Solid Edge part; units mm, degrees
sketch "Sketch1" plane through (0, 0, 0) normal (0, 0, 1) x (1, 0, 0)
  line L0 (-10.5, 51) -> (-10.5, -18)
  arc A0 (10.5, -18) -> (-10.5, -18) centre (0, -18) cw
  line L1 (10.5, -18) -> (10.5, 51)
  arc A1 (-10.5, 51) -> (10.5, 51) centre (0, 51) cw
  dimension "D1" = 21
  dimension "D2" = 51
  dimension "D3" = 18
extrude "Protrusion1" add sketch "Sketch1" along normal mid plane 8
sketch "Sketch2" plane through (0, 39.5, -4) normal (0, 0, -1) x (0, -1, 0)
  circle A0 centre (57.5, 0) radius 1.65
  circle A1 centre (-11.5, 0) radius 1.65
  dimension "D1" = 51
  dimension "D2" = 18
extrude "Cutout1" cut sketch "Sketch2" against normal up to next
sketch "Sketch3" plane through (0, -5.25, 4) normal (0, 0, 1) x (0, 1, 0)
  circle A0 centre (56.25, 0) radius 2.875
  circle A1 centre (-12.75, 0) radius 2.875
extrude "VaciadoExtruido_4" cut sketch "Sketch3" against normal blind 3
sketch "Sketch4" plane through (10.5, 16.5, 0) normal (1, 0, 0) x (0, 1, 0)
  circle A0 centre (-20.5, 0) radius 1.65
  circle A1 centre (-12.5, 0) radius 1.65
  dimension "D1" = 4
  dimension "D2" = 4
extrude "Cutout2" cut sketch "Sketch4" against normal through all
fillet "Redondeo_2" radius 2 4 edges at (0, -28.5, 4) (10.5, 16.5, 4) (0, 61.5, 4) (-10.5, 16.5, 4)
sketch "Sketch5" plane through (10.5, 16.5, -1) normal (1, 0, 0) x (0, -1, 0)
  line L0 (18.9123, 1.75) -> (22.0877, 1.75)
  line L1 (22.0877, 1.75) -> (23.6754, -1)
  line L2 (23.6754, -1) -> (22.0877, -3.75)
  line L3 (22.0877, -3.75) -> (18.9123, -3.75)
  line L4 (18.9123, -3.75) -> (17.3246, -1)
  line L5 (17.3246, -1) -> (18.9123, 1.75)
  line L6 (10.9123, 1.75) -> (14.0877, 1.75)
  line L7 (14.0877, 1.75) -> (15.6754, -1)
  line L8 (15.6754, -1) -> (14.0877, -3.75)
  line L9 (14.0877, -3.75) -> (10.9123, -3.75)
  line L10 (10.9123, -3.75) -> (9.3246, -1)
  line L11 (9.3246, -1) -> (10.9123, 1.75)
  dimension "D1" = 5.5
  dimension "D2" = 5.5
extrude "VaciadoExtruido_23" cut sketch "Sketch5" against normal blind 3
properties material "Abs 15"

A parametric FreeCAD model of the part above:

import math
import FreeCAD as App
import Part
import Sketcher
from FreeCAD import Vector
Q = App.Units.Quantity


def edges_at(feature, points):
    """Names of the edges that pass closest to the given points."""
    edges = feature.Shape.Edges
    near = lambda p: min(range(len(edges)), key=lambda i: edges[i].distToShape(Part.Vertex(*p))[0])
    return sorted({f"Edge{near(p) + 1}" for p in points})


def add_polygon(sketch, points):
    """Adds a closed chain of lines whose ends are joined by coincident constraints."""
    first, n = sketch.GeometryCount, len(points)
    for a, b in zip(points, points[1:] + points[:1]):
        sketch.addGeometry(Part.LineSegment(App.Vector(*a, 0), App.Vector(*b, 0)), False)
    for i in range(n):
        sketch.addConstraint(Sketcher.Constraint("Coincident", first + i, 2, first + (i + 1) % n, 1))

doc = App.newDocument("Part")
body = doc.addObject("PartDesign::Body", "Body")

# Sketch on XY plane
sketch1 = doc.addObject("Sketcher::SketchObject", "Sketch")
body.addObject(sketch1)
sketch1.AttachmentSupport = (doc.XY_Plane, [""])
sketch1.MapMode = "FlatFace"
sketch1.addGeometry([
    Part.ArcOfCircle(Part.Circle(Vector(0, 51, 0), Vector(0, 0, 1), 10), math.radians(0), math.radians(180)),
    Part.LineSegment(Vector(-10, 51, 0), Vector(-10, -18, 0)),
    Part.ArcOfCircle(Part.Circle(Vector(0, -18, 0), Vector(0, 0, 1), 10), math.radians(180), math.radians(360)),
    Part.LineSegment(Vector(10, -18, 0), Vector(10, 51, 0)),
], False)
sketch1.addConstraint([
    Sketcher.Constraint("Tangent", 0, 2, 1, 1),
    Sketcher.Constraint("Tangent", 1, 2, 2, 1),
    Sketcher.Constraint("Tangent", 2, 2, 3, 1),
    Sketcher.Constraint("Tangent", 3, 2, 0, 1),
    Sketcher.Constraint("Vertical", 1),
    Sketcher.Constraint("Vertical", 3),
    Sketcher.Constraint("PointOnObject", 0, 3, -2),
    Sketcher.Constraint("Radius", 0, Q("10.5 mm")),
    Sketcher.Constraint("DistanceY", 1, 2, 1, 1, Q("69 mm")),
    Sketcher.Constraint("DistanceY", -1, 1, 0, 3, Q("51 mm")),
])
pad1 = doc.addObject("PartDesign::Pad", "Pad")
body.addObject(pad1)
pad1.Profile = sketch1
pad1.Length = 8
pad1.Midplane = True

# Sketch on XY plane
sketch2 = doc.addObject("Sketcher::SketchObject", "Sketch001")
body.addObject(sketch2)
sketch2.AttachmentSupport = (doc.XY_Plane, [""])
sketch2.MapMode = "FlatFace"
sketch2.AttachmentOffset = App.Placement(Vector(0, 0, -4), App.Rotation())
sketch2.addGeometry([
    Part.Circle(Vector(0, -18, 0), Vector(0, 0, 1), 1.6),
    Part.Circle(Vector(0, 51, 0), Vector(0, 0, 1), 1.6),
], False)
sketch2.addConstraint([
    Sketcher.Constraint("Equal", 0, 1),
    Sketcher.Constraint("PointOnObject", 0, 3, -2),
    Sketcher.Constraint("PointOnObject", 1, 3, -2),
    Sketcher.Constraint("Diameter", 0, Q("3.3 mm")),
    Sketcher.Constraint("DistanceY", 0, 3, -1, 1, Q("18 mm")),
    Sketcher.Constraint("DistanceY", -1, 1, 1, 3, Q("51 mm")),
])
pocket1 = doc.addObject("PartDesign::Pocket", "Pocket")
body.addObject(pocket1)
pocket1.Profile = sketch2
pocket1.Type = "UpToFirst"
pocket1.Reversed = True

# Sketch on XY plane
sketch3 = doc.addObject("Sketcher::SketchObject", "Sketch002")
body.addObject(sketch3)
sketch3.AttachmentSupport = (doc.XY_Plane, [""])
sketch3.MapMode = "FlatFace"
sketch3.AttachmentOffset = App.Placement(Vector(0, 0, 4), App.Rotation())
sketch3.addGeometry([
    Part.Circle(Vector(0, 51, 0), Vector(0, 0, 1), 2.9),
    Part.Circle(Vector(0, -18, 0), Vector(0, 0, 1), 2.9),
], False)
sketch3.addConstraint([
    Sketcher.Constraint("Equal", 0, 1),
    Sketcher.Constraint("PointOnObject", 0, 3, -2),
    Sketcher.Constraint("PointOnObject", 1, 3, -2),
    Sketcher.Constraint("Diameter", 0, Q("5.75 mm")),
    Sketcher.Constraint("DistanceY", -1, 1, 0, 3, Q("51 mm")),
    Sketcher.Constraint("DistanceY", 1, 3, -1, 1, Q("18 mm")),
])
pocket2 = doc.addObject("PartDesign::Pocket", "Pocket001")
body.addObject(pocket2)
pocket2.Profile = sketch3
pocket2.Length = 3

# Sketch on YZ plane
sketch4 = doc.addObject("Sketcher::SketchObject", "Sketch003")
body.addObject(sketch4)
sketch4.AttachmentSupport = (doc.YZ_Plane, [""])
sketch4.MapMode = "FlatFace"
sketch4.AttachmentOffset = App.Placement(Vector(0, 0, 10.5), App.Rotation())
sketch4.addGeometry([
    Part.Circle(Vector(-4, 0, 0), Vector(0, 0, 1), 1.6),
    Part.Circle(Vector(4, 0, 0), Vector(0, 0, 1), 1.6),
], False)
sketch4.addConstraint([
    Sketcher.Constraint("Equal", 0, 1),
    Sketcher.Constraint("Symmetric", 0, 3, 1, 3, -1, 1),
    Sketcher.Constraint("PointOnObject", 0, 3, -1),
    Sketcher.Constraint("Diameter", 0, Q("3.3 mm")),
    Sketcher.Constraint("DistanceX", 0, 3, -1, 1, Q("4 mm")),
])
pocket3 = doc.addObject("PartDesign::Pocket", "Pocket002")
body.addObject(pocket3)
pocket3.Profile = sketch4
pocket3.Type = "ThroughAll"
doc.recompute()

fillet = doc.addObject("PartDesign::Fillet", "Fillet")
body.addObject(fillet)
fillet.Base = (pocket3, edges_at(pocket3, [
    (0, -28.5, 4),
    (10.5, 16.5, 4),
    (0, 61.5, 4),
    (-10.5, 16.5, 4),
]))
fillet.Radius = 2

# Sketch on YZ plane
sketch5 = doc.addObject("Sketcher::SketchObject", "Sketch004")
body.addObject(sketch5)
sketch5.AttachmentSupport = (doc.YZ_Plane, [""])
sketch5.MapMode = "FlatFace"
sketch5.AttachmentOffset = App.Placement(Vector(0, 0, 10.5), App.Rotation())
add_polygon(sketch5, [(-5.6, -2.8), (-2.4, -2.8), (-0.8, 0), (-2.4, 2.8), (-5.6, 2.8), (-7.2, 0)])  # lines 0-5
add_polygon(sketch5, [(2.4, -2.8), (5.6, -2.8), (7.2, 0), (5.6, 2.8), (2.4, 2.8), (0.8, 0)])  # lines 6-11
sketch5.addConstraint([
    Sketcher.Constraint("Horizontal", 0),
    Sketcher.Constraint("Horizontal", 3),
    Sketcher.Constraint("Horizontal", 6),
    Sketcher.Constraint("Horizontal", 9),
    Sketcher.Constraint("Symmetric", 3, 2, 6, 2, -1, 1),
    Sketcher.Constraint("Symmetric", 4, 2, 7, 2, -1, 1),
    Sketcher.Constraint("Symmetric", 5, 2, 8, 2, -1, 1),
    Sketcher.Constraint("Symmetric", 1, 2, 10, 2, -1, 1),
    Sketcher.Constraint("Symmetric", 5, 2, 6, 2, -2),
    Sketcher.Constraint("PointOnObject", 1, 2, -1),
    Sketcher.Constraint("PointOnObject", 4, 2, -1),
    Sketcher.Constraint("Parallel", 1, 4),
    Sketcher.Constraint("Parallel", 2, 5),
    Sketcher.Constraint("Parallel", 7, 10),
    Sketcher.Constraint("Parallel", 8, 11),
    Sketcher.Constraint("Angle", 1, Q("60.0002 deg")),
    Sketcher.Constraint("DistanceX", 0, 2, 6, 2, Q("8 mm")),
    Sketcher.Constraint("DistanceY", 0, 2, 2, 2, Q("5.5 mm")),
    Sketcher.Constraint("DistanceX", 0, 1, 0, 2, Q("3.1754 mm")),
])
pocket4 = doc.addObject("PartDesign::Pocket", "Pocket003")
body.addObject(pocket4)
pocket4.Profile = sketch5
pocket4.Length = 3

doc.recompute()
